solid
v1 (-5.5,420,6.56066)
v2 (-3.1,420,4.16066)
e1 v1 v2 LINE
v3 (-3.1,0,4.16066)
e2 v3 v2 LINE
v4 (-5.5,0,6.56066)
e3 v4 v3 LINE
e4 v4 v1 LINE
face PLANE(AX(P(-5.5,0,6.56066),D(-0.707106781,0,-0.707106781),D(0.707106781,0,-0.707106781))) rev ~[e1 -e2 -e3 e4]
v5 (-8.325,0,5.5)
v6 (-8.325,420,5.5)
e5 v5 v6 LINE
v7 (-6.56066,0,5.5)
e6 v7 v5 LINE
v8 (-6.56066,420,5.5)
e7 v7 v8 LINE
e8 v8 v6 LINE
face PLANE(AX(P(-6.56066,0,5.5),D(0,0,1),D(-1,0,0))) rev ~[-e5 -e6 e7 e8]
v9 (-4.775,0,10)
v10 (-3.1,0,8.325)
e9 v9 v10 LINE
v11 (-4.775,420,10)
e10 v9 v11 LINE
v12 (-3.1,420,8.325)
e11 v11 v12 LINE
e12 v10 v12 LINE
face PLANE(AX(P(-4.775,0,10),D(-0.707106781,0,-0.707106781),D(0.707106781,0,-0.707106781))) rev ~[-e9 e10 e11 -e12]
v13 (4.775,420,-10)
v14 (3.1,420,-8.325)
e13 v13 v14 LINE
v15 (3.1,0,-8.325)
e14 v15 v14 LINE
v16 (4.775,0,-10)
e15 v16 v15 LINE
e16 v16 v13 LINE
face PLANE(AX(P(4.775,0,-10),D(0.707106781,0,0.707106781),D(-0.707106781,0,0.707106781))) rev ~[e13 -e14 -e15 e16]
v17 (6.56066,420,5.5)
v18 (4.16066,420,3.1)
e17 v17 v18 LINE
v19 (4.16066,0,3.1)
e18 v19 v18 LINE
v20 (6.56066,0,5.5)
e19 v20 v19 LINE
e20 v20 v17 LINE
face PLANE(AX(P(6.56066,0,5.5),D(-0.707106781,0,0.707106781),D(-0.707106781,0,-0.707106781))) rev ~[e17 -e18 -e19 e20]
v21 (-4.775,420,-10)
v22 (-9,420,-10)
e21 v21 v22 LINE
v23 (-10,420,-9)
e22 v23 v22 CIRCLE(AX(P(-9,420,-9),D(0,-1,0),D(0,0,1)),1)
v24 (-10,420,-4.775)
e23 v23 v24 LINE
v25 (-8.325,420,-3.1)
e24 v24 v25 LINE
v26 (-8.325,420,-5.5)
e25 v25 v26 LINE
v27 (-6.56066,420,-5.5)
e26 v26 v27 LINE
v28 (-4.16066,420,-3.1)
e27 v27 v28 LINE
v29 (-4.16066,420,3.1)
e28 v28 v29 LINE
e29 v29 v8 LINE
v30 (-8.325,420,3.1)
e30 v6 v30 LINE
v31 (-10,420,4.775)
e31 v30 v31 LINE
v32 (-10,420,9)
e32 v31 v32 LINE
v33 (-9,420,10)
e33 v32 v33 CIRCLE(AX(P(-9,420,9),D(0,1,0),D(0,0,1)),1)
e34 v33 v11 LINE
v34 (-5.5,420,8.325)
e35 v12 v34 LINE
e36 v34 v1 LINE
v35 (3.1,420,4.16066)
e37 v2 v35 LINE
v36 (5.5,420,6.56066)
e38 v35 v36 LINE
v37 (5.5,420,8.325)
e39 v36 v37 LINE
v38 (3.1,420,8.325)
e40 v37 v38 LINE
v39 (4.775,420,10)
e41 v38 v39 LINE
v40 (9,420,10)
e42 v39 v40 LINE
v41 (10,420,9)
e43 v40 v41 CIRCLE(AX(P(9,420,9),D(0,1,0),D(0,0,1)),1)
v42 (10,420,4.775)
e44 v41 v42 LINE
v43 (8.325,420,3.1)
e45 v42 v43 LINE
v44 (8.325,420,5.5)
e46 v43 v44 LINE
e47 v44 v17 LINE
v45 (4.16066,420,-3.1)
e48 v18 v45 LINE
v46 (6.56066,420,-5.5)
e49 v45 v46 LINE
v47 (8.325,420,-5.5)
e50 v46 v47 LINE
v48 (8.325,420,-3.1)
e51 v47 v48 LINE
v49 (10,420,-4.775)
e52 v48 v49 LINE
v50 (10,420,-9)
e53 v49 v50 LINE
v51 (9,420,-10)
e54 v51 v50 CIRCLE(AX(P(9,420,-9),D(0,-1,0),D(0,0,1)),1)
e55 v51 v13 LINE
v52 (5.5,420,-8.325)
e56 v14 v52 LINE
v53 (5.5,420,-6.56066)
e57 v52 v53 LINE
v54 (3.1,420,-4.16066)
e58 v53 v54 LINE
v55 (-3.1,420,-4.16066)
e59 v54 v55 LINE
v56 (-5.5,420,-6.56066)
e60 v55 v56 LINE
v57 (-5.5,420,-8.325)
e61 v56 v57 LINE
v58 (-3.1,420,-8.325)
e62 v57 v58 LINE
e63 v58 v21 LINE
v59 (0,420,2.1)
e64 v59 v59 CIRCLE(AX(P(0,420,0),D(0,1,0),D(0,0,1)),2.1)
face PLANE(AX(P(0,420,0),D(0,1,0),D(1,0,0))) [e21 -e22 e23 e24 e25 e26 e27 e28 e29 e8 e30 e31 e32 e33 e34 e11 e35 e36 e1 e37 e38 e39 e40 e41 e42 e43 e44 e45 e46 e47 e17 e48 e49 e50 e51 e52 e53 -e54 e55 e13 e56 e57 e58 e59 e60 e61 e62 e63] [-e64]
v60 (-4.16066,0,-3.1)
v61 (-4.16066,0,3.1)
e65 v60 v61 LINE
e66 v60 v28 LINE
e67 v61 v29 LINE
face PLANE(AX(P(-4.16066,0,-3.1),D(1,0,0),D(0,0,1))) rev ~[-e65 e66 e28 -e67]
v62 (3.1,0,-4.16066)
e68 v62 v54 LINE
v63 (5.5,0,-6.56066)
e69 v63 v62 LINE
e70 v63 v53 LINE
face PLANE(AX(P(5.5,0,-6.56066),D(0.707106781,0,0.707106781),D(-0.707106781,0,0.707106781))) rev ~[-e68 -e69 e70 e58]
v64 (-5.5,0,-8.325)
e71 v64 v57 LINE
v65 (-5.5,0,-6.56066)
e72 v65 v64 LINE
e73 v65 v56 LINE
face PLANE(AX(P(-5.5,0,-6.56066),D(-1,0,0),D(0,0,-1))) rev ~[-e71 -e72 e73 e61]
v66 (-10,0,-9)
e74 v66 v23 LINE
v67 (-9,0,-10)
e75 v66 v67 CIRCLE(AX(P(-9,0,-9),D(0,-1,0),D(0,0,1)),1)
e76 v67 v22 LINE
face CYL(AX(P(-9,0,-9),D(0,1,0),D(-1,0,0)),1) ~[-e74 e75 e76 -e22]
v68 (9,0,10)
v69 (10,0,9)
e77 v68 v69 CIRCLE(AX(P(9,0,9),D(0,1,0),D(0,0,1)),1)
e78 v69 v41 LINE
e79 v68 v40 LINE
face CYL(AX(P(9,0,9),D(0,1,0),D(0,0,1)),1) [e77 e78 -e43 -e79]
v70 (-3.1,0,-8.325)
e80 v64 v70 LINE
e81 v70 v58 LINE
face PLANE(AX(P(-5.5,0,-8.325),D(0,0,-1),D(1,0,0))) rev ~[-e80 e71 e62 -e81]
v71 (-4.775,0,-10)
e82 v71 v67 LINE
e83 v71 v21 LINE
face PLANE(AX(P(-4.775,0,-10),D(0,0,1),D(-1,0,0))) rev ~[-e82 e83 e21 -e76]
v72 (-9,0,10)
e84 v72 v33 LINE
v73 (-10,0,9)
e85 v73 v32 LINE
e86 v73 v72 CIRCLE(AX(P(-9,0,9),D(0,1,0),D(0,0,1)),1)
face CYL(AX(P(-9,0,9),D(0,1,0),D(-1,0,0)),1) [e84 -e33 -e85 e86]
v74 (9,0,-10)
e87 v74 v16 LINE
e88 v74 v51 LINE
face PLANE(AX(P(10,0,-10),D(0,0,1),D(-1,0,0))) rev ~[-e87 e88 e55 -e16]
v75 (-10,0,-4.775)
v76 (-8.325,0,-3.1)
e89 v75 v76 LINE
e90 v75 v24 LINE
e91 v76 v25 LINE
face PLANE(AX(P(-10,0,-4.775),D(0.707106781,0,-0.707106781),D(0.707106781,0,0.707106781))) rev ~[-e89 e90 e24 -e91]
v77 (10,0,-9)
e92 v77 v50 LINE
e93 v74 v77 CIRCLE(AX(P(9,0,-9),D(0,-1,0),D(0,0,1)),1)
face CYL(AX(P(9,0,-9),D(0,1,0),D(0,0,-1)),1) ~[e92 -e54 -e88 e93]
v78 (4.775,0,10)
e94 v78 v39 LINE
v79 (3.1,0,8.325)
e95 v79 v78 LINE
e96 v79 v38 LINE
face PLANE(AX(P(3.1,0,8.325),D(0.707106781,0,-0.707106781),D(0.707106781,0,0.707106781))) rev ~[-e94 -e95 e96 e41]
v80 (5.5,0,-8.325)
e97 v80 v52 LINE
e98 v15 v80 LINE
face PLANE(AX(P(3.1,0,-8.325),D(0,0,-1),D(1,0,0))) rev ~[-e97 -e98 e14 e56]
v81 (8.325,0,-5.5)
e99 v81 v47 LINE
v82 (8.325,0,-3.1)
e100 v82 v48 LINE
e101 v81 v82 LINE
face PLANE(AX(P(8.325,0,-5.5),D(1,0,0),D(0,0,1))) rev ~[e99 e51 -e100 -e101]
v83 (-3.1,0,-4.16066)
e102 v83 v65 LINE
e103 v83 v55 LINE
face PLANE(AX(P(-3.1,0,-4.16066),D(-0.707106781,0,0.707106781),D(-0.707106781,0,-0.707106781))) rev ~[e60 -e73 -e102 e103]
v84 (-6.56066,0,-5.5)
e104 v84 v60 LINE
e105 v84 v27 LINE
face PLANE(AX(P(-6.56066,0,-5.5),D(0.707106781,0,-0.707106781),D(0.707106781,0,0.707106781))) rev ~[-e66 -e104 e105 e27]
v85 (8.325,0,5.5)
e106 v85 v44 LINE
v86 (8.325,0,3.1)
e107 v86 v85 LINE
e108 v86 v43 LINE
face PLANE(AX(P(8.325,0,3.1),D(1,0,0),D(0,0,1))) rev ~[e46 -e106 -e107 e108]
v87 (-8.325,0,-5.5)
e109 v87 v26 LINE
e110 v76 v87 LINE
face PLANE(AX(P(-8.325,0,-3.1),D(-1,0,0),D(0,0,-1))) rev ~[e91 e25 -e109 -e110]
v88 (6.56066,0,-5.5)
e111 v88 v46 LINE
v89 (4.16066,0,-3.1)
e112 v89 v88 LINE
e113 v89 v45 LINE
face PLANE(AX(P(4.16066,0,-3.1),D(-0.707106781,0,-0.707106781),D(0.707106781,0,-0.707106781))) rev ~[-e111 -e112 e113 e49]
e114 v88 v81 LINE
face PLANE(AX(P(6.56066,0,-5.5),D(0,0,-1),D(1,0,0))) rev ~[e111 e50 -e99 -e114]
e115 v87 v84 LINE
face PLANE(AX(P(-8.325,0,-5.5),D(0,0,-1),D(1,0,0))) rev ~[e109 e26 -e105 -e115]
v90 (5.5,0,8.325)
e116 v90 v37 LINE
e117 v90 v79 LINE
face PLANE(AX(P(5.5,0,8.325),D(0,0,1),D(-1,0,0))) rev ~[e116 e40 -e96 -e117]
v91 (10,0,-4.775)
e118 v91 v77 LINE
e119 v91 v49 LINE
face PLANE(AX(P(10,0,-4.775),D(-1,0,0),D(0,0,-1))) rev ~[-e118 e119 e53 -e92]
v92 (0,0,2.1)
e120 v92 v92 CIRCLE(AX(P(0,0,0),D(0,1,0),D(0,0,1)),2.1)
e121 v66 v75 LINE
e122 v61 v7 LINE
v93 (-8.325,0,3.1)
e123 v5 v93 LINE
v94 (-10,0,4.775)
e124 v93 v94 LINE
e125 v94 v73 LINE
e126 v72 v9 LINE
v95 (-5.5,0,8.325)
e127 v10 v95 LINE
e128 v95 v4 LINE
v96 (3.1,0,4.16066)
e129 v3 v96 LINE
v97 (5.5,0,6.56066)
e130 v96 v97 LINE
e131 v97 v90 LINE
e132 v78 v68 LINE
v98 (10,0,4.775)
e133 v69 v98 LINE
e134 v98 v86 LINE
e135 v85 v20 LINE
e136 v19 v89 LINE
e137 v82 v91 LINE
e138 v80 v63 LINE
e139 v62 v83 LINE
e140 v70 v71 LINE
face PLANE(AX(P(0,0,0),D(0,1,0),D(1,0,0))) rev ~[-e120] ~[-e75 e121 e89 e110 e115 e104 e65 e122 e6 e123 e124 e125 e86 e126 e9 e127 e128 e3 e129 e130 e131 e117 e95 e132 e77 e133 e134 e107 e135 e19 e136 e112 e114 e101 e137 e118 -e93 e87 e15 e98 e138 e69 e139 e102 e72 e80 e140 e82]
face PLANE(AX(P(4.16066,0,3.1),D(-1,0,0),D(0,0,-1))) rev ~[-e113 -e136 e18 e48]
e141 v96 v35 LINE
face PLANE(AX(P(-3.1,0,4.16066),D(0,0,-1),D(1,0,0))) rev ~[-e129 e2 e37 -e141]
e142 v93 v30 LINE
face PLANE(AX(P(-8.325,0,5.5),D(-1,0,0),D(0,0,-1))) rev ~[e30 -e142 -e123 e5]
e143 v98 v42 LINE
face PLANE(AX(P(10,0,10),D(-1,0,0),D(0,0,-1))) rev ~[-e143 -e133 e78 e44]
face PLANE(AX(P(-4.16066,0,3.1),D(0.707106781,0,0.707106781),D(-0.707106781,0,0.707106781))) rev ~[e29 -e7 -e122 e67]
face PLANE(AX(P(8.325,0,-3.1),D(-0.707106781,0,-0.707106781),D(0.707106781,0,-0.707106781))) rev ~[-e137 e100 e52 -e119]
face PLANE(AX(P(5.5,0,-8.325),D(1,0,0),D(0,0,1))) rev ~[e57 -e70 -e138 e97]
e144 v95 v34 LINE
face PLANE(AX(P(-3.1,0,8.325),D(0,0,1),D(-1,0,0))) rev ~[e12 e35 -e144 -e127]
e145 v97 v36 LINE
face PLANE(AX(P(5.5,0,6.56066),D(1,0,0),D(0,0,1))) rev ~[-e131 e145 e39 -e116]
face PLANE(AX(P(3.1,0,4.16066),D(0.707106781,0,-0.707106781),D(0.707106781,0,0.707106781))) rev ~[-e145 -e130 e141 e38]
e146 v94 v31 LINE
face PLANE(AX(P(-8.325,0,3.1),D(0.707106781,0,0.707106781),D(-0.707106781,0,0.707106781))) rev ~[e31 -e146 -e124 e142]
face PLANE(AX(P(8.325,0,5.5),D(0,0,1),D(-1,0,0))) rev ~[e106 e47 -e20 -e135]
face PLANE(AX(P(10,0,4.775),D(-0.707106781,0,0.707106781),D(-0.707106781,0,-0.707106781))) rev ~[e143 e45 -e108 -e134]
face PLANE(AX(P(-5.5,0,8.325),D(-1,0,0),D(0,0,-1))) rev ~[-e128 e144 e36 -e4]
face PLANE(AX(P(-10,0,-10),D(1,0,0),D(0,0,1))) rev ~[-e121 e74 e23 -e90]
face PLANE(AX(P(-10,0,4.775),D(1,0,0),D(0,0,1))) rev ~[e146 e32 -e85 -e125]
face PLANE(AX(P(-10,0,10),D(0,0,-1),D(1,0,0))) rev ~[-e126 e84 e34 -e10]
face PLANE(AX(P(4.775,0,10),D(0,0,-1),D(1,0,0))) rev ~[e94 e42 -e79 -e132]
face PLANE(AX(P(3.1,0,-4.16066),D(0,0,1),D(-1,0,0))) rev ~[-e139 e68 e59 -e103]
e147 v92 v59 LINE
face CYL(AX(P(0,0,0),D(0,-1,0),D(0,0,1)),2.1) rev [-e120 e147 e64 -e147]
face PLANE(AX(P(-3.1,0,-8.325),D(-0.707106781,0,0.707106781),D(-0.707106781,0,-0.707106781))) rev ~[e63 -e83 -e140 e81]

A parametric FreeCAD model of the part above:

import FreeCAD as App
import Part
import Sketcher


def edges_at(feature, points):
    """Names of the edges that pass closest to the given points."""
    edges = feature.Shape.Edges
    near = lambda p: min(range(len(edges)), key=lambda i: edges[i].distToShape(Part.Vertex(*p))[0])
    return sorted({f"Edge{near(p) + 1}" for p in points})

doc = App.newDocument("Part")
body = doc.addObject("PartDesign::Body", "Body")

# Sketch on XZ plane
sketch1 = doc.addObject("Sketcher::SketchObject", "Sketch")
body.addObject(sketch1)
sketch1.AttachmentSupport = (doc.XZ_Plane, [""])
sketch1.MapMode = "FlatFace"
sketch1.addGeometry([
    Part.LineSegment(App.Vector(-8.325, -3.1, 0), App.Vector(-8.325, -5.5, 0)),  # 0
    Part.LineSegment(App.Vector(-8.325, -5.5, 0), App.Vector(-6.56066, -5.5, 0)),  # 1
    Part.LineSegment(App.Vector(-6.56066, -5.5, 0), App.Vector(-4.16066, -3.1, 0)),  # 2
    Part.LineSegment(App.Vector(-4.16066, -3.1, 0), App.Vector(-4.16066, 3.1, 0)),  # 3
    Part.LineSegment(App.Vector(-4.16066, 3.1, 0), App.Vector(-6.56066, 5.5, 0)),  # 4
    Part.LineSegment(App.Vector(-6.56066, 5.5, 0), App.Vector(-8.325, 5.5, 0)),  # 5
    Part.LineSegment(App.Vector(-8.325, 5.5, 0), App.Vector(-8.325, 3.1, 0)),  # 6
    Part.LineSegment(App.Vector(-8.325, 3.1, 0), App.Vector(-10, 4.775, 0)),  # 7
    Part.LineSegment(App.Vector(-10, 4.775, 0), App.Vector(-10, 10, 0)),  # 8
    Part.LineSegment(App.Vector(-10, 10, 0), App.Vector(-4.775, 10, 0)),  # 9
    Part.LineSegment(App.Vector(-4.775, 10, 0), App.Vector(-3.1, 8.325, 0)),  # 10
    Part.LineSegment(App.Vector(-3.1, 8.325, 0), App.Vector(-5.5, 8.325, 0)),  # 11
    Part.LineSegment(App.Vector(-5.5, 8.325, 0), App.Vector(-5.5, 6.56066, 0)),  # 12
    Part.LineSegment(App.Vector(-5.5, 6.56066, 0), App.Vector(-3.1, 4.16066, 0)),  # 13
    Part.LineSegment(App.Vector(-3.1, 4.16066, 0), App.Vector(3.1, 4.16066, 0)),  # 14
    Part.LineSegment(App.Vector(3.1, 4.16066, 0), App.Vector(5.5, 6.56066, 0)),  # 15
    Part.LineSegment(App.Vector(5.5, 6.56066, 0), App.Vector(5.5, 8.325, 0)),  # 16
    Part.LineSegment(App.Vector(5.5, 8.325, 0), App.Vector(3.1, 8.325, 0)),  # 17
    Part.LineSegment(App.Vector(3.1, 8.325, 0), App.Vector(4.775, 10, 0)),  # 18
    Part.LineSegment(App.Vector(4.775, 10, 0), App.Vector(10, 10, 0)),  # 19
    Part.LineSegment(App.Vector(10, 10, 0), App.Vector(10, 4.775, 0)),  # 20
    Part.LineSegment(App.Vector(10, 4.775, 0), App.Vector(8.325, 3.1, 0)),  # 21
    Part.LineSegment(App.Vector(8.325, 3.1, 0), App.Vector(8.325, 5.5, 0)),  # 22
    Part.LineSegment(App.Vector(8.325, 5.5, 0), App.Vector(6.56066, 5.5, 0)),  # 23
    Part.LineSegment(App.Vector(6.56066, 5.5, 0), App.Vector(4.16066, 3.1, 0)),  # 24
    Part.LineSegment(App.Vector(4.16066, 3.1, 0), App.Vector(4.16066, -3.1, 0)),  # 25
    Part.LineSegment(App.Vector(4.16066, -3.1, 0), App.Vector(6.56066, -5.5, 0)),  # 26
    Part.LineSegment(App.Vector(6.56066, -5.5, 0), App.Vector(8.325, -5.5, 0)),  # 27
    Part.LineSegment(App.Vector(8.325, -5.5, 0), App.Vector(8.325, -3.1, 0)),  # 28
    Part.LineSegment(App.Vector(8.325, -3.1, 0), App.Vector(10, -4.775, 0)),  # 29
    Part.LineSegment(App.Vector(10, -4.775, 0), App.Vector(10, -10, 0)),  # 30
    Part.LineSegment(App.Vector(10, -10, 0), App.Vector(4.775, -10, 0)),  # 31
    Part.LineSegment(App.Vector(4.775, -10, 0), App.Vector(3.1, -8.325, 0)),  # 32
    Part.LineSegment(App.Vector(3.1, -8.325, 0), App.Vector(5.5, -8.325, 0)),  # 33
    Part.LineSegment(App.Vector(5.5, -8.325, 0), App.Vector(5.5, -6.56066, 0)),  # 34
    Part.LineSegment(App.Vector(5.5, -6.56066, 0), App.Vector(3.1, -4.16066, 0)),  # 35
    Part.LineSegment(App.Vector(3.1, -4.16066, 0), App.Vector(-3.1, -4.16066, 0)),  # 36
    Part.LineSegment(App.Vector(-3.1, -4.16066, 0), App.Vector(-5.5, -6.56066, 0)),  # 37
    Part.LineSegment(App.Vector(-5.5, -6.56066, 0), App.Vector(-5.5, -8.325, 0)),  # 38
    Part.LineSegment(App.Vector(-5.5, -8.325, 0), App.Vector(-3.1, -8.325, 0)),  # 39
    Part.LineSegment(App.Vector(-3.1, -8.325, 0), App.Vector(-4.775, -10, 0)),  # 40
    Part.LineSegment(App.Vector(-4.775, -10, 0), App.Vector(-10, -10, 0)),  # 41
    Part.LineSegment(App.Vector(-10, -10, 0), App.Vector(-10, -4.775, 0)),  # 42
    Part.LineSegment(App.Vector(-10, -4.775, 0), App.Vector(-8.325, -3.1, 0)),  # 43
    Part.Circle(App.Vector(0, 0, 0), App.Vector(0, 0, 1), 2.1),  # 44
], False)
sketch1.addConstraint([
    Sketcher.Constraint("Coincident", 0, 2, 1, 1),
    Sketcher.Constraint("Coincident", 1, 2, 2, 1),
    Sketcher.Constraint("Coincident", 2, 2, 3, 1),
    Sketcher.Constraint("Coincident", 3, 2, 4, 1),
    Sketcher.Constraint("Coincident", 4, 2, 5, 1),
    Sketcher.Constraint("Coincident", 5, 2, 6, 1),
    Sketcher.Constraint("Coincident", 6, 2, 7, 1),
    Sketcher.Constraint("Coincident", 7, 2, 8, 1),
    Sketcher.Constraint("Coincident", 8, 2, 9, 1),
    Sketcher.Constraint("Coincident", 9, 2, 10, 1),
    Sketcher.Constraint("Coincident", 10, 2, 11, 1),
    Sketcher.Constraint("Coincident", 11, 2, 12, 1),
    Sketcher.Constraint("Coincident", 12, 2, 13, 1),
    Sketcher.Constraint("Coincident", 13, 2, 14, 1),
    Sketcher.Constraint("Coincident", 14, 2, 15, 1),
    Sketcher.Constraint("Coincident", 15, 2, 16, 1),
    Sketcher.Constraint("Coincident", 16, 2, 17, 1),
    Sketcher.Constraint("Coincident", 17, 2, 18, 1),
    Sketcher.Constraint("Coincident", 18, 2, 19, 1),
    Sketcher.Constraint("Coincident", 19, 2, 20, 1),
    Sketcher.Constraint("Coincident", 20, 2, 21, 1),
    Sketcher.Constraint("Coincident", 21, 2, 22, 1),
    Sketcher.Constraint("Coincident", 22, 2, 23, 1),
    Sketcher.Constraint("Coincident", 23, 2, 24, 1),
    Sketcher.Constraint("Coincident", 24, 2, 25, 1),
    Sketcher.Constraint("Coincident", 25, 2, 26, 1),
    Sketcher.Constraint("Coincident", 26, 2, 27, 1),
    Sketcher.Constraint("Coincident", 27, 2, 28, 1),
    Sketcher.Constraint("Coincident", 28, 2, 29, 1),
    Sketcher.Constraint("Coincident", 29, 2, 30, 1),
    Sketcher.Constraint("Coincident", 30, 2, 31, 1),
    Sketcher.Constraint("Coincident", 31, 2, 32, 1),
    Sketcher.Constraint("Coincident", 32, 2, 33, 1),
    Sketcher.Constraint("Coincident", 33, 2, 34, 1),
    Sketcher.Constraint("Coincident", 34, 2, 35, 1),
    Sketcher.Constraint("Coincident", 35, 2, 36, 1),
    Sketcher.Constraint("Coincident", 36, 2, 37, 1),
    Sketcher.Constraint("Coincident", 37, 2, 38, 1),
    Sketcher.Constraint("Coincident", 38, 2, 39, 1),
    Sketcher.Constraint("Coincident", 39, 2, 40, 1),
    Sketcher.Constraint("Coincident", 40, 2, 41, 1),
    Sketcher.Constraint("Coincident", 41, 2, 42, 1),
    Sketcher.Constraint("Coincident", 42, 2, 43, 1),
    Sketcher.Constraint("Coincident", 43, 2, 0, 1),
    Sketcher.Constraint("Vertical", 0),
    Sketcher.Constraint("Horizontal", 1),
    Sketcher.Constraint("Vertical", 3),
    Sketcher.Constraint("Horizontal", 5),
    Sketcher.Constraint("Vertical", 6),
    Sketcher.Constraint("Vertical", 8),
    Sketcher.Constraint("Horizontal", 9),
    Sketcher.Constraint("Horizontal", 11),
    Sketcher.Constraint("Vertical", 12),
    Sketcher.Constraint("Horizontal", 14),
    Sketcher.Constraint("Vertical", 16),
    Sketcher.Constraint("Horizontal", 17),
    Sketcher.Constraint("Horizontal", 19),
    Sketcher.Constraint("Vertical", 20),
    Sketcher.Constraint("Vertical", 22),
    Sketcher.Constraint("Horizontal", 23),
    Sketcher.Constraint("Vertical", 25),
    Sketcher.Constraint("Horizontal", 27),
    Sketcher.Constraint("Vertical", 28),
    Sketcher.Constraint("Vertical", 30),
    Sketcher.Constraint("Horizontal", 31),
    Sketcher.Constraint("Horizontal", 33),
    Sketcher.Constraint("Vertical", 34),
    Sketcher.Constraint("Horizontal", 36),
    Sketcher.Constraint("Vertical", 38),
    Sketcher.Constraint("Horizontal", 39),
    Sketcher.Constraint("Horizontal", 41),
    Sketcher.Constraint("Vertical", 42),
    Sketcher.Constraint("Coincident", 44, 3, -1, 1),
    Sketcher.Constraint("Symmetric", 0, 2, 22, 2, -1, 1),
    Sketcher.Constraint("Symmetric", 2, 2, 24, 2, -1, 1),
    Sketcher.Constraint("Symmetric", 4, 2, 26, 2, -1, 1),
    Sketcher.Constraint("Symmetric", 6, 2, 28, 2, -1, 1),
    Sketcher.Constraint("Symmetric", 7, 2, 29, 2, -1, 1),
    Sketcher.Constraint("Symmetric", 9, 2, 31, 2, -1, 1),
    Sketcher.Constraint("Symmetric", 10, 2, 32, 2, -1, 1),
    Sketcher.Constraint("Symmetric", 12, 2, 34, 2, -1, 1),
    Sketcher.Constraint("Symmetric", 13, 2, 35, 2, -1, 1),
    Sketcher.Constraint("Symmetric", 15, 2, 37, 2, -1, 1),
    Sketcher.Constraint("Symmetric", 17, 2, 39, 2, -1, 1),
    Sketcher.Constraint("Symmetric", 18, 2, 40, 2, -1, 1),
    Sketcher.Constraint("Symmetric", 20, 2, 42, 2, -1, 1),
    Sketcher.Constraint("Symmetric", 12, 2, 15, 2, -2),
    Sketcher.Constraint("Symmetric", 10, 2, 17, 2, -2),
    Sketcher.Constraint("Symmetric", 9, 2, 18, 2, -2),
    Sketcher.Constraint("Symmetric", 7, 2, 20, 2, -2),
    Sketcher.Constraint("Symmetric", 6, 2, 21, 2, -2),
    Sketcher.Constraint("Symmetric", 4, 2, 23, 2, -2),
    Sketcher.Constraint("Perpendicular", 2, 4),
    Sketcher.Constraint("Parallel", 4, 7),
    Sketcher.Constraint("Parallel", 7, 10),
    Sketcher.Constraint("Parallel", 10, 13),
    Sketcher.Constraint("Perpendicular", 13, 15),
    Sketcher.Constraint("Parallel", 15, 18),
    Sketcher.Constraint("Parallel", 21, 24),
    Sketcher.Constraint("Perpendicular", 24, 26),
    Sketcher.Constraint("Perpendicular", 35, 37),
    Sketcher.Constraint("Parallel", 40, 43),
    Sketcher.Constraint("Horizontal", 3, 2, 6, 2),
    Sketcher.Constraint("Vertical", 10, 2, 13, 2),
    Sketcher.Constraint("Equal", 39, 0),
    Sketcher.Constraint("Equal", 36, 3),
    Sketcher.Constraint("Equal", 41, 8),
    Sketcher.Constraint("Equal", 27, 12),
    Sketcher.Constraint("Equal", 7, 10),
    Sketcher.Constraint("Diameter", 44, 4.2),
    Sketcher.Constraint("DistanceX", 11, 2, 11, 1, 2.4),
    Sketcher.Constraint("DistanceX", 14, 1, 14, 2, 6.2),
    Sketcher.Constraint("DistanceX", 7, 2, -1, 1, 10.0),
    Sketcher.Constraint("DistanceX", 9, 1, 9, 2, 5.225),
    Sketcher.Constraint("DistanceX", 1, 1, 1, 2, 1.76434),
])
pad1 = doc.addObject("PartDesign::Pad", "Pad")
body.addObject(pad1)
pad1.Profile = sketch1
pad1.Length = 420
pad1.Reversed = True
doc.recompute()

fillet = doc.addObject("PartDesign::Fillet", "Fillet")
body.addObject(fillet)
fillet.Base = (pad1, edges_at(pad1, [
    (10, 210, -10),
    (10, 210, 10),
    (-10, 210, 10),
    (-10, 210, -10),
]))
fillet.Radius = 1

doc.recompute()
